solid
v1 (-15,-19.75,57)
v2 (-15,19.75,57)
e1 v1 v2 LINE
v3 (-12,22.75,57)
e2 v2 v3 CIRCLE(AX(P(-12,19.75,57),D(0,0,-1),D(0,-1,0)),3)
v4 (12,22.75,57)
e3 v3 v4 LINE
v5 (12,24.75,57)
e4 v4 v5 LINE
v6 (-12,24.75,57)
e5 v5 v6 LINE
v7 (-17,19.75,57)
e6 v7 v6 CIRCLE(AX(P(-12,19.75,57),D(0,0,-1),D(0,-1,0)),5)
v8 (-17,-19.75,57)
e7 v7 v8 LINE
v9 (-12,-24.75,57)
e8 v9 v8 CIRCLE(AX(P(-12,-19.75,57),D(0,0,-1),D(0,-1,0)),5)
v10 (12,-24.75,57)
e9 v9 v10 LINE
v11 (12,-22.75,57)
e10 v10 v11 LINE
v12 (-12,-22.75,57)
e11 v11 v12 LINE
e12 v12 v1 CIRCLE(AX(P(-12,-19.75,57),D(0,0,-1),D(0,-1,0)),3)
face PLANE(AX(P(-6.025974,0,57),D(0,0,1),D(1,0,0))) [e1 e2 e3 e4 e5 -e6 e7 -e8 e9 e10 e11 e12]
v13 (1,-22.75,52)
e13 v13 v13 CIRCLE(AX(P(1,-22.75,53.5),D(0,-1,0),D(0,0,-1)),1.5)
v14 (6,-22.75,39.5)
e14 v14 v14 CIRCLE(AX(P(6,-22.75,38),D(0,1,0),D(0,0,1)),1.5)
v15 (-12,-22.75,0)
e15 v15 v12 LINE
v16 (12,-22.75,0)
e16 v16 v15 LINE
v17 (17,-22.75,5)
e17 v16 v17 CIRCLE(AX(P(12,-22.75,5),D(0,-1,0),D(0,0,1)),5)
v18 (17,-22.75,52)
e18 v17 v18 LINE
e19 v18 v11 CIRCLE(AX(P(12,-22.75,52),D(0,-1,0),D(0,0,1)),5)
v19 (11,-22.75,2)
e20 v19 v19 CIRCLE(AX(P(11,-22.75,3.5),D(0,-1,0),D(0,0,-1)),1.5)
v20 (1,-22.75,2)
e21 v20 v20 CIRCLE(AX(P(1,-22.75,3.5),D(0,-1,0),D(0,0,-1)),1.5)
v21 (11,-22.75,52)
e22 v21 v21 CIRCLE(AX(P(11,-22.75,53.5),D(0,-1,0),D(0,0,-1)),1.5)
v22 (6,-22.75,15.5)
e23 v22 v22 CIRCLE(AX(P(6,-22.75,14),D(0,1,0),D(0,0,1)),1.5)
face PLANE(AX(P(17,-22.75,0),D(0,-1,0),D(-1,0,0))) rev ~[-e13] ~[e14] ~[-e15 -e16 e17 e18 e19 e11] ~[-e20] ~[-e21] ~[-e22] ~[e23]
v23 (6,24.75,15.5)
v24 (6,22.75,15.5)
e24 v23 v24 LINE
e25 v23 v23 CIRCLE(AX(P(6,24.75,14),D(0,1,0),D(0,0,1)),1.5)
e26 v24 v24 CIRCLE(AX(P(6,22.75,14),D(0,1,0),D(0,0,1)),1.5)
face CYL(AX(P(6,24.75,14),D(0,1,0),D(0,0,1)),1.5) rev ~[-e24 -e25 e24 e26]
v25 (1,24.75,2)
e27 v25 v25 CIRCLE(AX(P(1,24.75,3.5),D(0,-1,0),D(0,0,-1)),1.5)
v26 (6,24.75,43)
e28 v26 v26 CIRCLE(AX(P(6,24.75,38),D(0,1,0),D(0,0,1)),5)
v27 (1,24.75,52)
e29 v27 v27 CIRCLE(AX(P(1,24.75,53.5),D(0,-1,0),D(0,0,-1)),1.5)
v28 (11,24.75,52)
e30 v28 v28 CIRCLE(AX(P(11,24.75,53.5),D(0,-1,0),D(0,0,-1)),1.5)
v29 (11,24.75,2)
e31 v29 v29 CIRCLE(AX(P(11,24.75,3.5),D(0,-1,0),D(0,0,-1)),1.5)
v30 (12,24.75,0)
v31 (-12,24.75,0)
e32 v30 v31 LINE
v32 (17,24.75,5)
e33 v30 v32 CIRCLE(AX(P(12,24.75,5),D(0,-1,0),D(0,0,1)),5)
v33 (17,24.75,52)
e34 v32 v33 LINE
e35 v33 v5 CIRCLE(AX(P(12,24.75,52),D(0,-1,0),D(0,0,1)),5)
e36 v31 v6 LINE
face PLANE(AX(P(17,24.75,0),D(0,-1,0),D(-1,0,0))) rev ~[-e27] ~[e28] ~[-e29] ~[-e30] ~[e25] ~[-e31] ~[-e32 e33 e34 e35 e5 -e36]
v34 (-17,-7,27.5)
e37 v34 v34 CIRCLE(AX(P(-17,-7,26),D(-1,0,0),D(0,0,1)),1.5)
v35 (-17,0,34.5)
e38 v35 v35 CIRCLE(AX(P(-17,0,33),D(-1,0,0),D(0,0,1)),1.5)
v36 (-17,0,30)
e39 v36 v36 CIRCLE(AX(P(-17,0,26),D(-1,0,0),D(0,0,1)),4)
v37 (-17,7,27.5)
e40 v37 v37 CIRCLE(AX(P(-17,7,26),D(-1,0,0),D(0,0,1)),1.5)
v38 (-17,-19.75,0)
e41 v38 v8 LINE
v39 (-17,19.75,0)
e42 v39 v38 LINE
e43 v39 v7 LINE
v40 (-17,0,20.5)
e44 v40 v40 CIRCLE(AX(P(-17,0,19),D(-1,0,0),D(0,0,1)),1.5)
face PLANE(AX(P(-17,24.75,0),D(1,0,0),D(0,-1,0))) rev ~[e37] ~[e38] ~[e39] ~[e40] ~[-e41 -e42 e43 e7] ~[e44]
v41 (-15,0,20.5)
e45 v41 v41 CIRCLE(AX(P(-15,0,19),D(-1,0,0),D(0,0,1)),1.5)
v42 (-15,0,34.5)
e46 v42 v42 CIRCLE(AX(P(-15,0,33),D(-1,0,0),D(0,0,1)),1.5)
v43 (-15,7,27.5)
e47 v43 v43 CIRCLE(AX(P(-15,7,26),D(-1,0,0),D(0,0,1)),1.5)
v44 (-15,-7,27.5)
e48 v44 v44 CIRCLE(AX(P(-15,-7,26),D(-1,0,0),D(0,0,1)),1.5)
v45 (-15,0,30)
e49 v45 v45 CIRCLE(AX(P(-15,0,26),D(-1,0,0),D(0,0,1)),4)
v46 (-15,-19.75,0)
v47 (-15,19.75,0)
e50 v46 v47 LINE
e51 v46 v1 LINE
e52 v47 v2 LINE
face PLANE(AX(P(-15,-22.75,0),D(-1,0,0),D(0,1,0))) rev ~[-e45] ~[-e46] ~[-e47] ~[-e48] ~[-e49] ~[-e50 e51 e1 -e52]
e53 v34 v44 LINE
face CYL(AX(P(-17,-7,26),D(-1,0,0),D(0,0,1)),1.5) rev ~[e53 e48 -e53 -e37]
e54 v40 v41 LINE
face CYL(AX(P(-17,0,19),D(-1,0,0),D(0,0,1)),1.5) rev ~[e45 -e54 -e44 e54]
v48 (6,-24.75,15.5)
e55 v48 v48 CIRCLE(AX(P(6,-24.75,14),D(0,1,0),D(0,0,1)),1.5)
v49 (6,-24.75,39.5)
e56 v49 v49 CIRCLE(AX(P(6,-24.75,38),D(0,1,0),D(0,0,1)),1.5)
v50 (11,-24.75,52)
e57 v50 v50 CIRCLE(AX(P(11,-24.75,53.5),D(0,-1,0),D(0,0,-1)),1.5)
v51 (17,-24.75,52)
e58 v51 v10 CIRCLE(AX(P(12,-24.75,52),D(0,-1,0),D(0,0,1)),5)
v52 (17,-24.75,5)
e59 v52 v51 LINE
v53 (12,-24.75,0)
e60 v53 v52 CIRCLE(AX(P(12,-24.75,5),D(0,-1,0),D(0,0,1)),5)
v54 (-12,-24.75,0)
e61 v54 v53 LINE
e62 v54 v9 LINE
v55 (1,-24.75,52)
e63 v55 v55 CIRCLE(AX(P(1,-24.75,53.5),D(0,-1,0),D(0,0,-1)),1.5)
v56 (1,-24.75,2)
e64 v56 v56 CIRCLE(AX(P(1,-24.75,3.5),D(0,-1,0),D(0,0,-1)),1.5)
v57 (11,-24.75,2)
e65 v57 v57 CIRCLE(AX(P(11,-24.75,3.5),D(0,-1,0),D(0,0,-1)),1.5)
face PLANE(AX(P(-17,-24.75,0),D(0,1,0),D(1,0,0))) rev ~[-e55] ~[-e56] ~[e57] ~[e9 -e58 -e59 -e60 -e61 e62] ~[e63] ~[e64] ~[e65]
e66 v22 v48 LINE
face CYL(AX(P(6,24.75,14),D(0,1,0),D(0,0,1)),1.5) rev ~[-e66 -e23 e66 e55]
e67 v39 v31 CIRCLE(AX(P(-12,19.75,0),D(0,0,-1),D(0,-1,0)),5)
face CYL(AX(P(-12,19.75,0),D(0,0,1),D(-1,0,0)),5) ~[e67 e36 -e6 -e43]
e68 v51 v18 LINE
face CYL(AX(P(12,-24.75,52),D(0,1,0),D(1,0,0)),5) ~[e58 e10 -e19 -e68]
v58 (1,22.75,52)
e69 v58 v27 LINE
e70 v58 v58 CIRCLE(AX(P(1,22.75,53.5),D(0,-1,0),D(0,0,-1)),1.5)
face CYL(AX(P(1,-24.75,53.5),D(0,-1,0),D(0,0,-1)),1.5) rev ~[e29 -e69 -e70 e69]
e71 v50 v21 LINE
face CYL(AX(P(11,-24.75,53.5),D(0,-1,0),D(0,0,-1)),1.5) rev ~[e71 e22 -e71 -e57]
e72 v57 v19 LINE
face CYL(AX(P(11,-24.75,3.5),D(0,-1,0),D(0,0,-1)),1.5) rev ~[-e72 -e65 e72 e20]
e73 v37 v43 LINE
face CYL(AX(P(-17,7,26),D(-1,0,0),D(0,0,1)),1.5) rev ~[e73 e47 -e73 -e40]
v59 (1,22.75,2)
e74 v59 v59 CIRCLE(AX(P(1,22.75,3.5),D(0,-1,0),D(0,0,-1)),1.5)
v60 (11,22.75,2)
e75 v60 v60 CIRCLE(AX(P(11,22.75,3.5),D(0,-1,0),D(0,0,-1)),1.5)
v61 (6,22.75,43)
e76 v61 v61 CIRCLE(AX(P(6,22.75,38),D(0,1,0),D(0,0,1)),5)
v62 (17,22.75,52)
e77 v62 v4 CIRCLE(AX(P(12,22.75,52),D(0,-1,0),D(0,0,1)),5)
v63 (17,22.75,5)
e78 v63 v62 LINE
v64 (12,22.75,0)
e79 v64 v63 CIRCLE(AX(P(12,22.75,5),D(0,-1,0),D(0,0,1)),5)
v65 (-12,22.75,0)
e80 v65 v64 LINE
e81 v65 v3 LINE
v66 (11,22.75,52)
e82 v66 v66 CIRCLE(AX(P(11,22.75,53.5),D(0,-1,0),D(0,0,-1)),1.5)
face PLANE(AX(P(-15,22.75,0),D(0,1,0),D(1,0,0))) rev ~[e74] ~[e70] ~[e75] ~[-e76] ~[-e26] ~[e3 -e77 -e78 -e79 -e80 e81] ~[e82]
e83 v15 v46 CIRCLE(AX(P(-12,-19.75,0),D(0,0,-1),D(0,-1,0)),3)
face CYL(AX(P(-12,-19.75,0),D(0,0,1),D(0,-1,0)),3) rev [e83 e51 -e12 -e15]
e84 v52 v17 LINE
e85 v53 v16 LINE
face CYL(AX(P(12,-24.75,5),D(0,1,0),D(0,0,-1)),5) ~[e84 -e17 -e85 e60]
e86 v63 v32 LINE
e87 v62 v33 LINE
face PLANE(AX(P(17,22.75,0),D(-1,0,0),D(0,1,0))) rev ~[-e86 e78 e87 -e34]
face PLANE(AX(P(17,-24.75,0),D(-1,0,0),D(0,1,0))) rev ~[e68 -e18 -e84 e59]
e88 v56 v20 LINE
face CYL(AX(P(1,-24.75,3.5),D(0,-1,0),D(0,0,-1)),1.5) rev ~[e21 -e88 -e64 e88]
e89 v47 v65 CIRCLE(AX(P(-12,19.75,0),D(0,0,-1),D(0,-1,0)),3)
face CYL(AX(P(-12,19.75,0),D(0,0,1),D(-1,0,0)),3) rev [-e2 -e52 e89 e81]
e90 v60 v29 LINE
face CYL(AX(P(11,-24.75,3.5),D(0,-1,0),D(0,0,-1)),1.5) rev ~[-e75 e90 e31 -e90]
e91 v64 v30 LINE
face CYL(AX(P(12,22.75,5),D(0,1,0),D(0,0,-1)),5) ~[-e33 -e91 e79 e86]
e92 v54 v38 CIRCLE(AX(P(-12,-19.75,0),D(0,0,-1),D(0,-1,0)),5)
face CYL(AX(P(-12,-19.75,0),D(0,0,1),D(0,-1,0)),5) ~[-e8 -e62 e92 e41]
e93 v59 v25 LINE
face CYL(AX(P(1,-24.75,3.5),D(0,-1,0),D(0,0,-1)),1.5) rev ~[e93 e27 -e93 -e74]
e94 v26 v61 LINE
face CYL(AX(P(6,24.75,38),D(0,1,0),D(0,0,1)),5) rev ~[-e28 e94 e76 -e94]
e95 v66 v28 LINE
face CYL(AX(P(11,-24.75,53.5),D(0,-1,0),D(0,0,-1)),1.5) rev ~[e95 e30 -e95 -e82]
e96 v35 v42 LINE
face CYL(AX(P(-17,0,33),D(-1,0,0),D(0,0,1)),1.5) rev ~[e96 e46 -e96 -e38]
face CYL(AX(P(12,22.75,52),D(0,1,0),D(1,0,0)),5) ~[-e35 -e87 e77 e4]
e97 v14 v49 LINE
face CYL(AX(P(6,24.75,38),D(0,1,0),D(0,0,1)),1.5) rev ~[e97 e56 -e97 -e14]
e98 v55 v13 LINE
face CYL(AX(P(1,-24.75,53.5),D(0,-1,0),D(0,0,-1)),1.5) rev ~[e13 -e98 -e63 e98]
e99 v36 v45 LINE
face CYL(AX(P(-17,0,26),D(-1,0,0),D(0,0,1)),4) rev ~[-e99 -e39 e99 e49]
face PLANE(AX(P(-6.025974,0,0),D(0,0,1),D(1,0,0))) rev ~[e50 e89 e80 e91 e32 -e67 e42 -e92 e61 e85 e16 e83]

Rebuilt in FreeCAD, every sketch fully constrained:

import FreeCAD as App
import Part
import Sketcher


def edges_at(feature, points):
    """Names of the edges that pass closest to the given points."""
    edges = feature.Shape.Edges
    near = lambda p: min(range(len(edges)), key=lambda i: edges[i].distToShape(Part.Vertex(*p))[0])
    return sorted({f"Edge{near(p) + 1}" for p in points})

doc = App.newDocument("Part")
body = doc.addObject("PartDesign::Body", "Body")

sketch1 = body.newObject("Sketcher::SketchObject", "Sketch")
sketch1.AttachmentSupport = (doc.getObject("XY_Plane"), [""])
sketch1.MapMode = "FlatFace"
sketch1.addGeometry(Part.LineSegment(App.Vector(-17, -24.8, 0), App.Vector(17, -24.8, 0)), False)
sketch1.addGeometry(Part.LineSegment(App.Vector(17, -24.8, 0), App.Vector(17, -22.8, 0)), False)
sketch1.addGeometry(Part.LineSegment(App.Vector(17, -22.8, 0), App.Vector(-15, -22.8, 0)), False)
sketch1.addGeometry(Part.LineSegment(App.Vector(-15, -22.8, 0), App.Vector(-15, 22.8, 0)), False)
sketch1.addGeometry(Part.LineSegment(App.Vector(-15, 22.8, 0), App.Vector(17, 22.8, 0)), False)
sketch1.addGeometry(Part.LineSegment(App.Vector(17, 22.8, 0), App.Vector(17, 24.8, 0)), False)
sketch1.addGeometry(Part.LineSegment(App.Vector(17, 24.8, 0), App.Vector(-17, 24.8, 0)), False)
sketch1.addGeometry(Part.LineSegment(App.Vector(-17, 24.8, 0), App.Vector(-17, -24.8, 0)), False)
sketch1.addConstraint(Sketcher.Constraint("Coincident", 0, 2, 1, 1))
sketch1.addConstraint(Sketcher.Constraint("Coincident", 1, 2, 2, 1))
sketch1.addConstraint(Sketcher.Constraint("Coincident", 2, 2, 3, 1))
sketch1.addConstraint(Sketcher.Constraint("Coincident", 3, 2, 4, 1))
sketch1.addConstraint(Sketcher.Constraint("Coincident", 4, 2, 5, 1))
sketch1.addConstraint(Sketcher.Constraint("Coincident", 5, 2, 6, 1))
sketch1.addConstraint(Sketcher.Constraint("Coincident", 6, 2, 7, 1))
sketch1.addConstraint(Sketcher.Constraint("Coincident", 7, 2, 0, 1))
sketch1.addConstraint(Sketcher.Constraint("Horizontal", 0))
sketch1.addConstraint(Sketcher.Constraint("Vertical", 1))
sketch1.addConstraint(Sketcher.Constraint("Horizontal", 2))
sketch1.addConstraint(Sketcher.Constraint("Vertical", 3))
sketch1.addConstraint(Sketcher.Constraint("Horizontal", 4))
sketch1.addConstraint(Sketcher.Constraint("Vertical", 5))
sketch1.addConstraint(Sketcher.Constraint("Horizontal", 6))
sketch1.addConstraint(Sketcher.Constraint("Vertical", 7))
sketch1.addConstraint(Sketcher.Constraint("Symmetric", 0, 2, 6, 2, -1, 1))
sketch1.addConstraint(Sketcher.Constraint("Symmetric", 1, 2, 4, 2, -1))
sketch1.addConstraint(Sketcher.Constraint("DistanceX", 0, 1, 0, 2, 34.0))
sketch1.addConstraint(Sketcher.Constraint("DistanceX", 2, 2, 2, 1, 32.0))
sketch1.addConstraint(Sketcher.Constraint("DistanceY", 1, 1, 1, 2, 2.0))
sketch1.addConstraint(Sketcher.Constraint("DistanceY", 3, 1, 3, 2, 45.5))
pad1 = body.newObject("PartDesign::Pad", "Pad")
pad1.Profile = sketch1
pad1.Length = 57

sketch2 = body.newObject("Sketcher::SketchObject", "Sketch001")
sketch2.AttachmentSupport = (doc.getObject("XZ_Plane"), [""])
sketch2.MapMode = "FlatFace"
sketch2.AttachmentOffset = App.Placement(App.Vector(0, 0, -24.75), App.Rotation())
sketch2.addGeometry(Part.Circle(App.Vector(6, 14, 0), App.Vector(0, 0, 1), 1.5), False)
sketch2.addGeometry(Part.Circle(App.Vector(6, 38, 0), App.Vector(0, 0, 1), 1.5), False)
sketch2.addConstraint(Sketcher.Constraint("Equal", 0, 1))
sketch2.addConstraint(Sketcher.Constraint("Vertical", 0, 3, 1, 3))
sketch2.addConstraint(Sketcher.Constraint("Diameter", 0, 3.0))
sketch2.addConstraint(Sketcher.Constraint("DistanceX", -1, 1, 0, 3, 6.0))
sketch2.addConstraint(Sketcher.Constraint("DistanceY", -1, 1, 0, 3, 14.0))
sketch2.addConstraint(Sketcher.Constraint("DistanceY", -1, 1, 1, 3, 38.0))
pocket1 = body.newObject("PartDesign::Pocket", "Pocket")
pocket1.Profile = sketch2
pocket1.Length = 57
pocket1.Reversed = True

sketch3 = body.newObject("Sketcher::SketchObject", "Sketch002")
sketch3.AttachmentSupport = (doc.getObject("YZ_Plane"), [""])
sketch3.MapMode = "FlatFace"
sketch3.AttachmentOffset = App.Placement(App.Vector(0, 0, -17), App.Rotation())
sketch3.addGeometry(Part.Circle(App.Vector(0, 26, 0), App.Vector(0, 0, 1), 4), False)
sketch3.addGeometry(Part.Circle(App.Vector(7, 26, 0), App.Vector(0, 0, 1), 1.5), False)
sketch3.addGeometry(Part.Circle(App.Vector(0, 33, 0), App.Vector(0, 0, 1), 1.5), False)
sketch3.addGeometry(Part.Circle(App.Vector(-7, 26, 0), App.Vector(0, 0, 1), 1.5), False)
sketch3.addGeometry(Part.Circle(App.Vector(0, 19, 0), App.Vector(0, 0, 1), 1.5), False)
sketch3.addConstraint(Sketcher.Constraint("Equal", 1, 2))
sketch3.addConstraint(Sketcher.Constraint("Equal", 2, 3))
sketch3.addConstraint(Sketcher.Constraint("Equal", 3, 4))
sketch3.addConstraint(Sketcher.Constraint("Symmetric", 1, 3, 3, 3, -2))
sketch3.addConstraint(Sketcher.Constraint("PointOnObject", 0, 3, -2))
sketch3.addConstraint(Sketcher.Constraint("PointOnObject", 2, 3, -2))
sketch3.addConstraint(Sketcher.Constraint("PointOnObject", 4, 3, -2))
sketch3.addConstraint(Sketcher.Constraint("Horizontal", 0, 3, 1, 3))
sketch3.addConstraint(Sketcher.Constraint("Diameter", 0, 8.0))
sketch3.addConstraint(Sketcher.Constraint("Diameter", 1, 3.0))
sketch3.addConstraint(Sketcher.Constraint("DistanceY", -1, 1, 0, 3, 26.0))
sketch3.addConstraint(Sketcher.Constraint("DistanceX", -1, 1, 1, 3, 7.0))
sketch3.addConstraint(Sketcher.Constraint("DistanceY", -1, 1, 2, 3, 33.0))
sketch3.addConstraint(Sketcher.Constraint("DistanceY", -1, 1, 4, 3, 19.0))
pocket2 = body.newObject("PartDesign::Pocket", "Pocket001")
pocket2.Profile = sketch3
pocket2.Length = 57
pocket2.Reversed = True
doc.recompute()

fillet = body.newObject("PartDesign::Fillet", "Fillet")
fillet.Base = (pocket2, edges_at(pocket2, [(-17, -24.75, 28.5), (-17, 24.75, 28.5)]))
fillet.Radius = 5
doc.recompute()

fillet2 = body.newObject("PartDesign::Fillet", "Fillet001")
fillet2.Base = (fillet, edges_at(fillet, [(-15, 22.75, 28.5), (-15, -22.75, 28.5)]))
fillet2.Radius = 3
doc.recompute()

fillet3 = body.newObject("PartDesign::Fillet", "Fillet002")
fillet3.Base = (fillet2, edges_at(fillet2, [
    (17, 23.75, 0),
    (17, -23.75, 57),
    (17, 23.75, 57),
    (17, -23.75, 0),
]))
fillet3.Radius = 5

sketch4 = body.newObject("Sketcher::SketchObject", "Sketch003")
sketch4.AttachmentSupport = (doc.getObject("XZ_Plane"), [""])
sketch4.MapMode = "FlatFace"
sketch4.AttachmentOffset = App.Placement(App.Vector(0, 0, -24.75), App.Rotation())
sketch4.addGeometry(Part.Circle(App.Vector(6, 38, 0), App.Vector(0, 0, 1), 5), False)
sketch4.addConstraint(Sketcher.Constraint("Diameter", 0, 10.0))
sketch4.addConstraint(Sketcher.Constraint("DistanceX", -1, 1, 0, 3, 6.0))
sketch4.addConstraint(Sketcher.Constraint("DistanceY", -1, 1, 0, 3, 38.0))
pocket3 = body.newObject("PartDesign::Pocket", "Pocket002")
pocket3.Profile = sketch4
pocket3.Length = 26
pocket3.Reversed = True

sketch5 = body.newObject("Sketcher::SketchObject", "Sketch004")
sketch5.AttachmentSupport = (doc.getObject("XZ_Plane"), [""])
sketch5.MapMode = "FlatFace"
sketch5.AttachmentOffset = App.Placement(App.Vector(0, 0, 24.75), App.Rotation())
sketch5.addGeometry(Part.Circle(App.Vector(1, 53.5, 0), App.Vector(0, 0, 1), 1.5), False)
sketch5.addGeometry(Part.Circle(App.Vector(11, 53.5, 0), App.Vector(0, 0, 1), 1.5), False)
sketch5.addGeometry(Part.Circle(App.Vector(11, 3.5, 0), App.Vector(0, 0, 1), 1.5), False)
sketch5.addGeometry(Part.Circle(App.Vector(1, 3.5, 0), App.Vector(0, 0, 1), 1.5), False)
sketch5.addConstraint(Sketcher.Constraint("Equal", 0, 1))
sketch5.addConstraint(Sketcher.Constraint("Equal", 1, 2))
sketch5.addConstraint(Sketcher.Constraint("Equal", 2, 3))
sketch5.addConstraint(Sketcher.Constraint("Horizontal", 0, 3, 1, 3))
sketch5.addConstraint(Sketcher.Constraint("Horizontal", 2, 3, 3, 3))
sketch5.addConstraint(Sketcher.Constraint("Vertical", 1, 3, 2, 3))
sketch5.addConstraint(Sketcher.Constraint("Vertical", 0, 3, 3, 3))
sketch5.addConstraint(Sketcher.Constraint("Diameter", 0, 3.0))
sketch5.addConstraint(Sketcher.Constraint("DistanceX", -1, 1, 0, 3, 1.0))
sketch5.addConstraint(Sketcher.Constraint("DistanceX", -1, 1, 1, 3, 11.0))
sketch5.addConstraint(Sketcher.Constraint("DistanceY", 2, 3, 1, 3, 50.0))
sketch5.addConstraint(Sketcher.Constraint("DistanceY", -1, 1, 0, 3, 53.5))
pocket4 = body.newObject("PartDesign::Pocket", "Pocket003")
pocket4.Profile = sketch5
pocket4.Length = 71

doc.recompute()
